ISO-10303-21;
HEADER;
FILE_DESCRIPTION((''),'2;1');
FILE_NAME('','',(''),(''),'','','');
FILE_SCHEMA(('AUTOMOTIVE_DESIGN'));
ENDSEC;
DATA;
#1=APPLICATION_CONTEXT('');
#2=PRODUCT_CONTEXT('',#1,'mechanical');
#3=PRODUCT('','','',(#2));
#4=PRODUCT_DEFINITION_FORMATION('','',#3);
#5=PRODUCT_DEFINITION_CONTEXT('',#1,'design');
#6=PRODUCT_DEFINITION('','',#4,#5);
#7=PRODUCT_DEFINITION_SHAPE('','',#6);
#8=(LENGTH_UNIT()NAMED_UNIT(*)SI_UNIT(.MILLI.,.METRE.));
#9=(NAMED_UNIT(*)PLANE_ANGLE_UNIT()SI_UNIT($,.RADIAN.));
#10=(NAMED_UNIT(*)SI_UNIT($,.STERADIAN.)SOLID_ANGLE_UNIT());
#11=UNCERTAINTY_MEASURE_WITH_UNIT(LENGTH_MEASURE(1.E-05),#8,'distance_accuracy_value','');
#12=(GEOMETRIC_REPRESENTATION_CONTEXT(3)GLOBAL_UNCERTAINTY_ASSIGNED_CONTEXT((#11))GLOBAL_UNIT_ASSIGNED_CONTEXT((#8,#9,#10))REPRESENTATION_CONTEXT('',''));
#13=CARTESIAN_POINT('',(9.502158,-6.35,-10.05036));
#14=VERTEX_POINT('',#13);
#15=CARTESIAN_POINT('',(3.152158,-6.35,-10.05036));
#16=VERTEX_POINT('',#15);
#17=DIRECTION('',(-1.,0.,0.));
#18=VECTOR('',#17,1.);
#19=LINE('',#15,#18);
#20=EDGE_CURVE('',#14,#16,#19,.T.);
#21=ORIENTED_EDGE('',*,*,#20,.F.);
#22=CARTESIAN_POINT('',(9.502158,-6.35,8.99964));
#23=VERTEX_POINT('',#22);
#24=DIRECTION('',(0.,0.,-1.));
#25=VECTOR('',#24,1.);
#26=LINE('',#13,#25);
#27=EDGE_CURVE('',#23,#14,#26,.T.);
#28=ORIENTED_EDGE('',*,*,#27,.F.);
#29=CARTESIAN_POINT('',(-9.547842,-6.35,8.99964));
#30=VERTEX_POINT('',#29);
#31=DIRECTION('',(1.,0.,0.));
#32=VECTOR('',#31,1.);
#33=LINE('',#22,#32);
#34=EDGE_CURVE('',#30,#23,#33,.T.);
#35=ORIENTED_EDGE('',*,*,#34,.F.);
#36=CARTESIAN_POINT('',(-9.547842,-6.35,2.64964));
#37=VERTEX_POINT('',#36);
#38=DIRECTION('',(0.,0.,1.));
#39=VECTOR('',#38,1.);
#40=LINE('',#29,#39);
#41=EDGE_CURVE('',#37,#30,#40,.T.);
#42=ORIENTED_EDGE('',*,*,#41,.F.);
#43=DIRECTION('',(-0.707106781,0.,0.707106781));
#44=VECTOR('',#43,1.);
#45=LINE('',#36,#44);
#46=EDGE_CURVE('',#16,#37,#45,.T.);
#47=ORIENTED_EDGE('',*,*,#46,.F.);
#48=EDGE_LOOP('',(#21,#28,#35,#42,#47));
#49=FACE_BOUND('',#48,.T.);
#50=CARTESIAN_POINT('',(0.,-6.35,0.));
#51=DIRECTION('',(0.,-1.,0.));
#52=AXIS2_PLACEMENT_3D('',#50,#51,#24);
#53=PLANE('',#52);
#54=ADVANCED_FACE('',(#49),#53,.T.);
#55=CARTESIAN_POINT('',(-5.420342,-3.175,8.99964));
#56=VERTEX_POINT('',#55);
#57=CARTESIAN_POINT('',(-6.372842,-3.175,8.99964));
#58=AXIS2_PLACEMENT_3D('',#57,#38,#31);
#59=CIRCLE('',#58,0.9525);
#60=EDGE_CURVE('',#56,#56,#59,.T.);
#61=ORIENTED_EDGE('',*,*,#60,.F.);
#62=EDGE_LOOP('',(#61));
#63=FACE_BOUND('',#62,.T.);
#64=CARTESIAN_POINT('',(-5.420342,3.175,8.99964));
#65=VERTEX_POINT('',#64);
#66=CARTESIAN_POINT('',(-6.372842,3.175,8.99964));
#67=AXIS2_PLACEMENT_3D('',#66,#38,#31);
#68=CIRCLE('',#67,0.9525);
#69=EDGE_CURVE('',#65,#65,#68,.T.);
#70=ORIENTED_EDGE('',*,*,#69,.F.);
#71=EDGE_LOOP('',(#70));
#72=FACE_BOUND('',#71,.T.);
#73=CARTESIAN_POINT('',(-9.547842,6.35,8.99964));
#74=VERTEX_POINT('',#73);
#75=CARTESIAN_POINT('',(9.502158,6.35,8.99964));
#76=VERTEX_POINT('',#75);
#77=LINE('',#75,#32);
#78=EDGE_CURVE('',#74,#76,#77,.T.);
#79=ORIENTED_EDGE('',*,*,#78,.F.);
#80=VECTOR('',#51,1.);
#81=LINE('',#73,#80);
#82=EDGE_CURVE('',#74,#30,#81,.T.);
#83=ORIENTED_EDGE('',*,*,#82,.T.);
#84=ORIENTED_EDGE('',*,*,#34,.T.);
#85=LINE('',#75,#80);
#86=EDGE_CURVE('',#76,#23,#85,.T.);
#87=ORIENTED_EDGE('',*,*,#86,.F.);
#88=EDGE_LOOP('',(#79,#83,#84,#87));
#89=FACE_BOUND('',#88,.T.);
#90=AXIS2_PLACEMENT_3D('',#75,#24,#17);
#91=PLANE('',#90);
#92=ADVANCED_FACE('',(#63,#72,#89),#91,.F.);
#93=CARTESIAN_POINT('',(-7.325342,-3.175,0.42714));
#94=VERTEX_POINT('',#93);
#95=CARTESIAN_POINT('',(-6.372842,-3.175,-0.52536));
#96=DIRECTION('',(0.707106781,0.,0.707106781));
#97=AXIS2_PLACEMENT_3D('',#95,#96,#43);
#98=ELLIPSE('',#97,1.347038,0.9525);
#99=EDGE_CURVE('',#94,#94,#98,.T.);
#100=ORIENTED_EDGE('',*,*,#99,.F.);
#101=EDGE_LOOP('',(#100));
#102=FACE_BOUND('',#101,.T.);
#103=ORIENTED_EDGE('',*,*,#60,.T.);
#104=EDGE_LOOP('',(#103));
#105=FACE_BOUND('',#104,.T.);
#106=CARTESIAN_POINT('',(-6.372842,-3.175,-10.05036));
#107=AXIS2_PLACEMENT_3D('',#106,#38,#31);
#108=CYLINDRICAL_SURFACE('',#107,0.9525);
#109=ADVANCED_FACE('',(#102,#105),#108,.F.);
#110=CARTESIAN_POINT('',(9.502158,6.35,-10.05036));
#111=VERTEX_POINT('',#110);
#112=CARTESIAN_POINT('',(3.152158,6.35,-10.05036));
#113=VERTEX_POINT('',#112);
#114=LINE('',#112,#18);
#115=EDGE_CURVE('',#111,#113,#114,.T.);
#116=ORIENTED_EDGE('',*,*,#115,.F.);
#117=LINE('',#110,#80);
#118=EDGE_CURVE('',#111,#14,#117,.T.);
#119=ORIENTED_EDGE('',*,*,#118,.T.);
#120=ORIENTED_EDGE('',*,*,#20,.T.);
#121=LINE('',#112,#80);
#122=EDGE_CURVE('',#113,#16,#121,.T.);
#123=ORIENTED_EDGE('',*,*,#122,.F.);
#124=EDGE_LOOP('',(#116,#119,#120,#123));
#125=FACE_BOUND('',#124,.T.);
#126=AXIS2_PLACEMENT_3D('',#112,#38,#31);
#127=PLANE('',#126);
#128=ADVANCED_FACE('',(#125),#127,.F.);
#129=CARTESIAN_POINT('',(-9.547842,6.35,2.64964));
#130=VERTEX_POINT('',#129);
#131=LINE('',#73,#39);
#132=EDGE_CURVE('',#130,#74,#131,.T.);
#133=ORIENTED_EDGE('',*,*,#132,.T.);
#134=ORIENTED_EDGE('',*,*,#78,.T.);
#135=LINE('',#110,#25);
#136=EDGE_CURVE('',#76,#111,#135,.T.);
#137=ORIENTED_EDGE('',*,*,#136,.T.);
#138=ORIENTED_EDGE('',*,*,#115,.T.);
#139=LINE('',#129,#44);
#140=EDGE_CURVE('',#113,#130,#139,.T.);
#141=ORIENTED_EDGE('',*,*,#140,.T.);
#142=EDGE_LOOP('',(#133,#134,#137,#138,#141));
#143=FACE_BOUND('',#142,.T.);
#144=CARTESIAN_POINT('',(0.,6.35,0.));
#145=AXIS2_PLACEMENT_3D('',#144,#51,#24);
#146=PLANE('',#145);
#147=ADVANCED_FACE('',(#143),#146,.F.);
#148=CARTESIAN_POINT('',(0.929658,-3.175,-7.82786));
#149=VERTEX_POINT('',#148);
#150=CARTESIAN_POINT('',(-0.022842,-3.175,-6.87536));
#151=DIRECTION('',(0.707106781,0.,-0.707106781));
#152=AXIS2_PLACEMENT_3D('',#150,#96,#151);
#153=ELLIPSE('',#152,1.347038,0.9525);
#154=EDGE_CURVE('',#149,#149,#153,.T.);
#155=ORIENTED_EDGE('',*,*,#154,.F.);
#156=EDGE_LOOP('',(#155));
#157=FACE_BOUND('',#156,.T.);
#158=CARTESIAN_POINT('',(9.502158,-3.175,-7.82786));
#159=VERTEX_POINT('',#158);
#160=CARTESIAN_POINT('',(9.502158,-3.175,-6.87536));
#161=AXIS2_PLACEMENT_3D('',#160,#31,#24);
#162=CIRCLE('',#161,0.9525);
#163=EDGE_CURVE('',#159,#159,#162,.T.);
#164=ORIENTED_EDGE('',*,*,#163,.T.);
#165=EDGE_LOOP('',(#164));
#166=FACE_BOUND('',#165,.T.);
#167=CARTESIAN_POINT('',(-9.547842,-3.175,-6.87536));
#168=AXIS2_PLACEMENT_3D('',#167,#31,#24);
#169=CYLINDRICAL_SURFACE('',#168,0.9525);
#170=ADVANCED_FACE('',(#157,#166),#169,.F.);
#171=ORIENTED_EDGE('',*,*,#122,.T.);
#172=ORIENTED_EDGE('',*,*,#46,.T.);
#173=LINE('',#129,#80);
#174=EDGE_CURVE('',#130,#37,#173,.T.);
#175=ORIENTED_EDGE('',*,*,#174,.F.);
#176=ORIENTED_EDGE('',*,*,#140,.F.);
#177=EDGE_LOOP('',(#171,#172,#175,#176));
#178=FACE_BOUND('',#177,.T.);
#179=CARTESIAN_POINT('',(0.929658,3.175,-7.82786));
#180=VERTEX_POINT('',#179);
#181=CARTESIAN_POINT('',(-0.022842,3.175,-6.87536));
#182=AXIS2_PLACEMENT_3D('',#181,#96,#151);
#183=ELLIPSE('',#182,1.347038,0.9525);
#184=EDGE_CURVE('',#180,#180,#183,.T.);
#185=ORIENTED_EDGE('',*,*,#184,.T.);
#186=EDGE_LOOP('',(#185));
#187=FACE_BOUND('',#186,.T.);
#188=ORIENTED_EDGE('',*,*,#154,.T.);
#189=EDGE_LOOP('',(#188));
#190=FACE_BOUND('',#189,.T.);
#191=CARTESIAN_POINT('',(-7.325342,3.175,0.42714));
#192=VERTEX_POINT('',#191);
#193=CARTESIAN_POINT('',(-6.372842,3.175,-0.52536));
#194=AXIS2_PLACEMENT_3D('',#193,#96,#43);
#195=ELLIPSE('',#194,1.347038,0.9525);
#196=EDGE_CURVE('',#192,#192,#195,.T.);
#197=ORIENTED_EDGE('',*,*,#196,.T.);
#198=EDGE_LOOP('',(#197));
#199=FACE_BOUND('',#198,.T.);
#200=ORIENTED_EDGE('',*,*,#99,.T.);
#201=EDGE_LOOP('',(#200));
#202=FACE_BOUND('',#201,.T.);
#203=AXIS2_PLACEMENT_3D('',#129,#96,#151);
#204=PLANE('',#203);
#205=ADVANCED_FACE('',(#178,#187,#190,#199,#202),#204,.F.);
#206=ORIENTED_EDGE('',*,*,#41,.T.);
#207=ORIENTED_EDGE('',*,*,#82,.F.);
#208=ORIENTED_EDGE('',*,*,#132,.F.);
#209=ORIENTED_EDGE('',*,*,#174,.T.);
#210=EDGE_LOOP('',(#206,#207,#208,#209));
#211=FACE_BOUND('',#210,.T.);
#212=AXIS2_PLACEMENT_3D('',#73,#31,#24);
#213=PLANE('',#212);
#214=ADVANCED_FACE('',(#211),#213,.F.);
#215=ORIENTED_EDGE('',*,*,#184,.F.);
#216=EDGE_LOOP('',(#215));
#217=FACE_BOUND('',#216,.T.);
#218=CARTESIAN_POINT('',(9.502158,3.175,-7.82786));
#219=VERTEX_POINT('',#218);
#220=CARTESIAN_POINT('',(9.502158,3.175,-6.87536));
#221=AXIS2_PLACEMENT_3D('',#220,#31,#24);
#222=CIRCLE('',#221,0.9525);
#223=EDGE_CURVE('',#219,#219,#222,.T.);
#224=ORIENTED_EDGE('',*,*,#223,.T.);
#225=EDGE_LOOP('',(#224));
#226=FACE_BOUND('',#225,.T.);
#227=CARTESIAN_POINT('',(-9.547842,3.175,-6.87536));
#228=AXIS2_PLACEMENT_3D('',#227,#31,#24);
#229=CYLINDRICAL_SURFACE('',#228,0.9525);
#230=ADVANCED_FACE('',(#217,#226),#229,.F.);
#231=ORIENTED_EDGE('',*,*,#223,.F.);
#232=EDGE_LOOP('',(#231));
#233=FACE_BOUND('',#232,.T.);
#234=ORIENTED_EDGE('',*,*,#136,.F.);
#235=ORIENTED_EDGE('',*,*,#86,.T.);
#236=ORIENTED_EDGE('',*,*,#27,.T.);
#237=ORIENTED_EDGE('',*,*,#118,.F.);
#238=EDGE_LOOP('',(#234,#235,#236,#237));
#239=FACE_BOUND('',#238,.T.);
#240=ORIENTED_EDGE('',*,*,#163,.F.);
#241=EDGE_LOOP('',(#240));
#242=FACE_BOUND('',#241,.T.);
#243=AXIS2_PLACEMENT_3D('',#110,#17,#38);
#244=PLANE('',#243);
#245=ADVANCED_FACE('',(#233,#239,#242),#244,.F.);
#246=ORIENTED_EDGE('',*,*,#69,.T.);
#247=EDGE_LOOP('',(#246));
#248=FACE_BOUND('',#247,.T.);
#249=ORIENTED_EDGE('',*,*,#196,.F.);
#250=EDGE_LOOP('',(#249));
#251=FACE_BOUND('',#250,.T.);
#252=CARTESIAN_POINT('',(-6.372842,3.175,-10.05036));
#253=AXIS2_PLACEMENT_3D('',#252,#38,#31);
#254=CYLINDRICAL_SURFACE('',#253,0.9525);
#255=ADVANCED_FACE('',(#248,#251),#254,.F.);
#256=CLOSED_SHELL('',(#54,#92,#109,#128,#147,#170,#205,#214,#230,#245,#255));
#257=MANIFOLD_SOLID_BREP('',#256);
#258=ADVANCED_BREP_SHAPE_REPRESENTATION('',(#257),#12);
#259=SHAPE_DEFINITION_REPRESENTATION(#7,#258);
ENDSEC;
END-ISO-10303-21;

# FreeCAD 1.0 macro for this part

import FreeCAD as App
import Part
import Sketcher
Q = App.Units.Quantity

doc = App.newDocument("Part")
params = doc.addObject("Spreadsheet::Sheet", "Params")
for row, (alias, value) in enumerate([
    ("sketch1_width", "0.75 in"),
    ("sketch1_width2", "0.25 in"),
    ("pad1_length", "0.5 in"),
    ("sketch2_diameter", "0.075 in"),
    ("sketch3_diameter", "0.075 in"),
], start=1):
    params.set(f"A{row}", alias)
    params.set(f"B{row}", "=" + value)
    params.setAlias(f"B{row}", alias)

body = doc.addObject("PartDesign::Body", "Body")

sketch1 = doc.addObject("Sketcher::SketchObject", "Sketch")
body.addObject(sketch1)
sketch1.AttachmentSupport = (doc.XZ_Plane, [""])
sketch1.MapMode = "FlatFace"
sketch1.addGeometry(Part.LineSegment(App.Vector(3.152158, -10.05036, 0), App.Vector(-9.547842, 2.64964, 0)), False)
sketch1.addGeometry(Part.LineSegment(App.Vector(-9.547842, 2.64964, 0), App.Vector(-9.547842, 8.99964, 0)), False)
sketch1.addGeometry(Part.LineSegment(App.Vector(-9.547842, 8.99964, 0), App.Vector(9.502158, 8.99964, 0)), False)
sketch1.addGeometry(Part.LineSegment(App.Vector(9.502158, 8.99964, 0), App.Vector(9.502158, -10.05036, 0)), False)
sketch1.addGeometry(Part.LineSegment(App.Vector(9.502158, -10.05036, 0), App.Vector(3.152158, -10.05036, 0)), False)
sketch1.addConstraint(Sketcher.Constraint("Coincident", 0, 2, 1, 1))
sketch1.addConstraint(Sketcher.Constraint("Coincident", 1, 2, 2, 1))
sketch1.addConstraint(Sketcher.Constraint("Coincident", 2, 2, 3, 1))
sketch1.addConstraint(Sketcher.Constraint("Coincident", 3, 2, 4, 1))
sketch1.addConstraint(Sketcher.Constraint("Coincident", 4, 2, 0, 1))
sketch1.addConstraint(Sketcher.Constraint("Vertical", 1))
sketch1.addConstraint(Sketcher.Constraint("Horizontal", 2))
sketch1.addConstraint(Sketcher.Constraint("Vertical", 3))
sketch1.addConstraint(Sketcher.Constraint("Horizontal", 4))
sketch1.addConstraint(Sketcher.Constraint("Equal", 4, 1))
sketch1.addConstraint(Sketcher.Constraint("Equal", 2, 3))
sketch1.addConstraint(Sketcher.Constraint("DistanceX", 2, 1, 2, 2, Q("0.75 in")))
sketch1.addConstraint(Sketcher.Constraint("DistanceX", 4, 2, 4, 1, Q("0.25 in")))
sketch1.addConstraint(Sketcher.Constraint("DistanceX", 0, 2, -1, 1, Q("9.547842 mm")))
sketch1.addConstraint(Sketcher.Constraint("DistanceY", -1, 1, 0, 2, Q("2.64964 mm")))
sketch1.setExpression("Constraints[11]", "Params.sketch1_width")
sketch1.setExpression("Constraints[12]", "Params.sketch1_width2")
pad1 = doc.addObject("PartDesign::Pad", "Pad")
body.addObject(pad1)
pad1.Profile = sketch1
pad1.setExpression("Length", "Params.pad1_length")
pad1.Midplane = True

sketch2 = doc.addObject("Sketcher::SketchObject", "Sketch001")
body.addObject(sketch2)
sketch2.AttachmentSupport = (doc.YZ_Plane, [""])
sketch2.MapMode = "FlatFace"
sketch2.AttachmentOffset = App.Placement(App.Vector(0, 0, 9.502158), App.Rotation())
sketch2.addGeometry(Part.Circle(App.Vector(3.175, -6.87536, 0), App.Vector(0, 0, 1), 0.9525), False)
sketch2.addGeometry(Part.Circle(App.Vector(-3.175, -6.87536, 0), App.Vector(0, 0, 1), 0.9525), False)
sketch2.addConstraint(Sketcher.Constraint("Equal", 0, 1))
sketch2.addConstraint(Sketcher.Constraint("Symmetric", 0, 3, 1, 3, -2))
sketch2.addConstraint(Sketcher.Constraint("Diameter", 0, Q("0.075 in")))
sketch2.addConstraint(Sketcher.Constraint("DistanceX", 1, 3, 0, 3, Q("0.25 in")))
sketch2.addConstraint(Sketcher.Constraint("DistanceY", 0, 3, -1, 1, Q("6.87536 mm")))
sketch2.setExpression("Constraints[2]", "Params.sketch2_diameter")
pocket1 = doc.addObject("PartDesign::Pocket", "Pocket")
body.addObject(pocket1)
pocket1.Profile = sketch2
pocket1.Type = "ThroughAll"

sketch3 = doc.addObject("Sketcher::SketchObject", "Sketch002")
body.addObject(sketch3)
sketch3.AttachmentSupport = (doc.XY_Plane, [""])
sketch3.MapMode = "FlatFace"
sketch3.AttachmentOffset = App.Placement(App.Vector(0, 0, 8.99964), App.Rotation())
sketch3.addGeometry(Part.Circle(App.Vector(-6.372842, 3.175, 0), App.Vector(0, 0, 1), 0.9525), False)
sketch3.addGeometry(Part.Circle(App.Vector(-6.372842, -3.175, 0), App.Vector(0, 0, 1), 0.9525), False)
sketch3.addConstraint(Sketcher.Constraint("Equal", 0, 1))
sketch3.addConstraint(Sketcher.Constraint("Symmetric", 0, 3, 1, 3, -1))
sketch3.addConstraint(Sketcher.Constraint("Diameter", 0, Q("0.075 in")))
sketch3.addConstraint(Sketcher.Constraint("DistanceY", 1, 3, 0, 3, Q("0.25 in")))
sketch3.addConstraint(Sketcher.Constraint("DistanceX", 0, 3, -1, 1, Q("6.372842 mm")))
sketch3.setExpression("Constraints[2]", "Params.sketch3_diameter")
pocket2 = doc.addObject("PartDesign::Pocket", "Pocket001")
body.addObject(pocket2)
pocket2.Profile = sketch3
pocket2.Type = "ThroughAll"

doc.recompute()
